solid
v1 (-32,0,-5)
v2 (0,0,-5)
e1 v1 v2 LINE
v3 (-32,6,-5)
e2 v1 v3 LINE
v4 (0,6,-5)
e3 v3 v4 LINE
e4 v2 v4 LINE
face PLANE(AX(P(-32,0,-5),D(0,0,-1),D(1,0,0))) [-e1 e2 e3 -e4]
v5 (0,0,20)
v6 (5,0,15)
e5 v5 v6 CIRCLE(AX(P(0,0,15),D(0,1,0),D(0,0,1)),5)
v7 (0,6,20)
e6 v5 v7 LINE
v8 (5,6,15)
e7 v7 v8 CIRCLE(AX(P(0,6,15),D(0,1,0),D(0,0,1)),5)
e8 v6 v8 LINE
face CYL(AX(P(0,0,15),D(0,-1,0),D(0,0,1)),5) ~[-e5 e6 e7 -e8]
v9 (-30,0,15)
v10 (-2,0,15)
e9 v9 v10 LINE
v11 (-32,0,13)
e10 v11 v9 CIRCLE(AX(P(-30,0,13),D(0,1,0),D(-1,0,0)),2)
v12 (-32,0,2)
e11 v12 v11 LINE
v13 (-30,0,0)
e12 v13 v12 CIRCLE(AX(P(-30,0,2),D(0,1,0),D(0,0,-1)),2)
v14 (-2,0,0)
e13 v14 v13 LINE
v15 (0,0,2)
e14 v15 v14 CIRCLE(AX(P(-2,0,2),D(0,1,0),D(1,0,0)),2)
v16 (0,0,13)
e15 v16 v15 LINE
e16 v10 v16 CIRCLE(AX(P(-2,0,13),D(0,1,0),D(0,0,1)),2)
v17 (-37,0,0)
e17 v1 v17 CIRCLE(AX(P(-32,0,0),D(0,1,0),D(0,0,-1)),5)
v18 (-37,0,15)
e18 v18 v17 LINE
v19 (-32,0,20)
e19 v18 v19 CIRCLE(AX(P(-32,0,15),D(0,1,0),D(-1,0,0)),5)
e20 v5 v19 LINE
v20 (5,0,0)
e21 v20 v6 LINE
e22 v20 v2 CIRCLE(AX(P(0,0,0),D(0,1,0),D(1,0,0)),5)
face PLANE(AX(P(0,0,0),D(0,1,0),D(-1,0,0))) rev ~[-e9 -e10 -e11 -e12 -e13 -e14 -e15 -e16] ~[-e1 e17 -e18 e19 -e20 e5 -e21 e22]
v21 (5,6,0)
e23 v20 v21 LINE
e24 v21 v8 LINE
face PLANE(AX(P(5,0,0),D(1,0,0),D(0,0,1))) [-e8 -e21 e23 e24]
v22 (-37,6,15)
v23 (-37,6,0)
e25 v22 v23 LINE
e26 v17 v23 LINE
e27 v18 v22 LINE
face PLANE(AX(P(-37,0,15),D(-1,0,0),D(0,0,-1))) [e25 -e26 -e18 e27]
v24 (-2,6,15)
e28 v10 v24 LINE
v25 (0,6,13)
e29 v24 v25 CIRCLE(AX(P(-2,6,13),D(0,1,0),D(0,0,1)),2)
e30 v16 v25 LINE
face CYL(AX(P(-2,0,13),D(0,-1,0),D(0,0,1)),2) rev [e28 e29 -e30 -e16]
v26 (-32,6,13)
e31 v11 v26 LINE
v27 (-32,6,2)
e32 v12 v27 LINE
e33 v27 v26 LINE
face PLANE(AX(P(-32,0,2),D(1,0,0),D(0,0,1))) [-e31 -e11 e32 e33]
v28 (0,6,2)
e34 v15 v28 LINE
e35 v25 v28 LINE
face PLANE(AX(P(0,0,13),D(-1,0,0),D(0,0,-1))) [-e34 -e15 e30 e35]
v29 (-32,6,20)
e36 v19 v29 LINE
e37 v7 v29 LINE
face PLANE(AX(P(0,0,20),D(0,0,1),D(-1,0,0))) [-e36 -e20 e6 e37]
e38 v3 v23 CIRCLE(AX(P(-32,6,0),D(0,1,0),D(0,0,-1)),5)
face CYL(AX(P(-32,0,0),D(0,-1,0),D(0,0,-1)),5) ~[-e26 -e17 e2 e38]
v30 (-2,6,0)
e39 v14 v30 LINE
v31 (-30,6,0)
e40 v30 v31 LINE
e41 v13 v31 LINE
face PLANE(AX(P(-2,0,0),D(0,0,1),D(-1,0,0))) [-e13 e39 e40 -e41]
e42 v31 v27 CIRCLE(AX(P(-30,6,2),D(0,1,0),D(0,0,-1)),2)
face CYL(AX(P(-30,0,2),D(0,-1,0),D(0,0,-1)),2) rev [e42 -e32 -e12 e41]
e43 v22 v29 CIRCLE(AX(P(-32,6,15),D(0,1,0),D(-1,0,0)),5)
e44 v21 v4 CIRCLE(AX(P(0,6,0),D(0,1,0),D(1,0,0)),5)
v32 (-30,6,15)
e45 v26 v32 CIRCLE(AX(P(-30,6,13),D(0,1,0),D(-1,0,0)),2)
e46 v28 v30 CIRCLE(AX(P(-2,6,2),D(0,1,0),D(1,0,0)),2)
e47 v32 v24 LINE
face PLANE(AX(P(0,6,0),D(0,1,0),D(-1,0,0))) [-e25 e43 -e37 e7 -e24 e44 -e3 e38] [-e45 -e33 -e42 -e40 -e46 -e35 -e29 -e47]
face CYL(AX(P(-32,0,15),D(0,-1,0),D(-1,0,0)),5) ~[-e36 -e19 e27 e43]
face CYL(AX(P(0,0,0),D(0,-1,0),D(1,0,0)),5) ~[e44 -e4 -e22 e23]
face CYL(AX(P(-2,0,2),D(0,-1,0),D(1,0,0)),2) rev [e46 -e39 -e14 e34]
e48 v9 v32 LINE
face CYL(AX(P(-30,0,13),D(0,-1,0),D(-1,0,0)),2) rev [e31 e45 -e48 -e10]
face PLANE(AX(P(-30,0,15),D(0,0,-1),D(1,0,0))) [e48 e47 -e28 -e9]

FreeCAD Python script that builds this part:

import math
import FreeCAD as App
import Part
import Sketcher
from FreeCAD import Vector

doc = App.newDocument("Part")
body = doc.addObject("PartDesign::Body", "Body")

sketch1 = body.newObject("Sketcher::SketchObject", "Sketch")
sketch1.AttachmentSupport = (doc.getObject("XZ_Plane"), [""])
sketch1.MapMode = "FlatFace"
sketch1.addGeometry([
    Part.LineSegment(Vector(-32, 20, 0), Vector(0, 20, 0)),
    Part.ArcOfCircle(Part.Circle(Vector(0, 15, 0), Vector(0, 0, 1), 5), math.radians(0), math.radians(90)),
    Part.LineSegment(Vector(5, 15, 0), Vector(5, 0, 0)),
    Part.ArcOfCircle(Part.Circle(Vector(0, 0, 0), Vector(0, 0, 1), 5), math.radians(-90), math.radians(0)),
    Part.LineSegment(Vector(0, -5, 0), Vector(-32, -5, 0)),
    Part.ArcOfCircle(Part.Circle(Vector(-32, 0, 0), Vector(0, 0, 1), 5), math.radians(180), math.radians(270)),
    Part.LineSegment(Vector(-37, 0, 0), Vector(-37, 15, 0)),
    Part.ArcOfCircle(Part.Circle(Vector(-32, 15, 0), Vector(0, 0, 1), 5), math.radians(90), math.radians(180)),
    Part.LineSegment(Vector(-30, 0, 0), Vector(-2, 0, 0)),
    Part.ArcOfCircle(Part.Circle(Vector(-2, 2, 0), Vector(0, 0, 1), 2), math.radians(-90), math.radians(0)),
    Part.LineSegment(Vector(0, 2, 0), Vector(0, 13, 0)),
    Part.ArcOfCircle(Part.Circle(Vector(-2, 13, 0), Vector(0, 0, 1), 2), math.radians(0), math.radians(90)),
    Part.LineSegment(Vector(-2, 15, 0), Vector(-30, 15, 0)),
    Part.ArcOfCircle(Part.Circle(Vector(-30, 13, 0), Vector(0, 0, 1), 2), math.radians(90), math.radians(180)),
    Part.LineSegment(Vector(-32, 13, 0), Vector(-32, 2, 0)),
    Part.ArcOfCircle(Part.Circle(Vector(-30, 2, 0), Vector(0, 0, 1), 2), math.radians(180), math.radians(270)),
], False)
sketch1.addConstraint([
    Sketcher.Constraint("Tangent", 0, 2, 1, 2),
    Sketcher.Constraint("Tangent", 1, 1, 2, 1),
    Sketcher.Constraint("Tangent", 2, 2, 3, 2),
    Sketcher.Constraint("Tangent", 3, 1, 4, 1),
    Sketcher.Constraint("Tangent", 4, 2, 5, 2),
    Sketcher.Constraint("Tangent", 5, 1, 6, 1),
    Sketcher.Constraint("Tangent", 6, 2, 7, 2),
    Sketcher.Constraint("Tangent", 7, 1, 0, 1),
    Sketcher.Constraint("Tangent", 8, 2, 9, 1),
    Sketcher.Constraint("Tangent", 9, 2, 10, 1),
    Sketcher.Constraint("Tangent", 10, 2, 11, 1),
    Sketcher.Constraint("Tangent", 11, 2, 12, 1),
    Sketcher.Constraint("Tangent", 12, 2, 13, 1),
    Sketcher.Constraint("Tangent", 13, 2, 14, 1),
    Sketcher.Constraint("Tangent", 14, 2, 15, 1),
    Sketcher.Constraint("Tangent", 15, 2, 8, 1),
    Sketcher.Constraint("Horizontal", 0),
    Sketcher.Constraint("Vertical", 2),
    Sketcher.Constraint("Horizontal", 4),
    Sketcher.Constraint("Vertical", 6),
    Sketcher.Constraint("Horizontal", 8),
    Sketcher.Constraint("Vertical", 10),
    Sketcher.Constraint("Horizontal", 12),
    Sketcher.Constraint("Vertical", 14),
    Sketcher.Constraint("Coincident", 3, 3, -1, 1),
    Sketcher.Constraint("Equal", 1, 3),
    Sketcher.Constraint("Equal", 3, 5),
    Sketcher.Constraint("Equal", 5, 7),
    Sketcher.Constraint("Equal", 9, 11),
    Sketcher.Constraint("Equal", 11, 13),
    Sketcher.Constraint("Equal", 13, 15),
    Sketcher.Constraint("PointOnObject", 8, 2, -1),
    Sketcher.Constraint("PointOnObject", 9, 2, -2),
    Sketcher.Constraint("Horizontal", 6, 2, 11, 2),
    Sketcher.Constraint("Vertical", 7, 1, 13, 2),
    Sketcher.Constraint("Radius", 1, 5.0),
    Sketcher.Constraint("Radius", 9, 2.0),
    Sketcher.Constraint("DistanceX", 0, 1, 0, 2, 32.0),
    Sketcher.Constraint("DistanceY", 2, 2, 2, 1, 15.0),
])
pad1 = body.newObject("PartDesign::Pad", "Pad")
pad1.Profile = sketch1
pad1.Length = 6
pad1.Reversed = True

doc.recompute()
